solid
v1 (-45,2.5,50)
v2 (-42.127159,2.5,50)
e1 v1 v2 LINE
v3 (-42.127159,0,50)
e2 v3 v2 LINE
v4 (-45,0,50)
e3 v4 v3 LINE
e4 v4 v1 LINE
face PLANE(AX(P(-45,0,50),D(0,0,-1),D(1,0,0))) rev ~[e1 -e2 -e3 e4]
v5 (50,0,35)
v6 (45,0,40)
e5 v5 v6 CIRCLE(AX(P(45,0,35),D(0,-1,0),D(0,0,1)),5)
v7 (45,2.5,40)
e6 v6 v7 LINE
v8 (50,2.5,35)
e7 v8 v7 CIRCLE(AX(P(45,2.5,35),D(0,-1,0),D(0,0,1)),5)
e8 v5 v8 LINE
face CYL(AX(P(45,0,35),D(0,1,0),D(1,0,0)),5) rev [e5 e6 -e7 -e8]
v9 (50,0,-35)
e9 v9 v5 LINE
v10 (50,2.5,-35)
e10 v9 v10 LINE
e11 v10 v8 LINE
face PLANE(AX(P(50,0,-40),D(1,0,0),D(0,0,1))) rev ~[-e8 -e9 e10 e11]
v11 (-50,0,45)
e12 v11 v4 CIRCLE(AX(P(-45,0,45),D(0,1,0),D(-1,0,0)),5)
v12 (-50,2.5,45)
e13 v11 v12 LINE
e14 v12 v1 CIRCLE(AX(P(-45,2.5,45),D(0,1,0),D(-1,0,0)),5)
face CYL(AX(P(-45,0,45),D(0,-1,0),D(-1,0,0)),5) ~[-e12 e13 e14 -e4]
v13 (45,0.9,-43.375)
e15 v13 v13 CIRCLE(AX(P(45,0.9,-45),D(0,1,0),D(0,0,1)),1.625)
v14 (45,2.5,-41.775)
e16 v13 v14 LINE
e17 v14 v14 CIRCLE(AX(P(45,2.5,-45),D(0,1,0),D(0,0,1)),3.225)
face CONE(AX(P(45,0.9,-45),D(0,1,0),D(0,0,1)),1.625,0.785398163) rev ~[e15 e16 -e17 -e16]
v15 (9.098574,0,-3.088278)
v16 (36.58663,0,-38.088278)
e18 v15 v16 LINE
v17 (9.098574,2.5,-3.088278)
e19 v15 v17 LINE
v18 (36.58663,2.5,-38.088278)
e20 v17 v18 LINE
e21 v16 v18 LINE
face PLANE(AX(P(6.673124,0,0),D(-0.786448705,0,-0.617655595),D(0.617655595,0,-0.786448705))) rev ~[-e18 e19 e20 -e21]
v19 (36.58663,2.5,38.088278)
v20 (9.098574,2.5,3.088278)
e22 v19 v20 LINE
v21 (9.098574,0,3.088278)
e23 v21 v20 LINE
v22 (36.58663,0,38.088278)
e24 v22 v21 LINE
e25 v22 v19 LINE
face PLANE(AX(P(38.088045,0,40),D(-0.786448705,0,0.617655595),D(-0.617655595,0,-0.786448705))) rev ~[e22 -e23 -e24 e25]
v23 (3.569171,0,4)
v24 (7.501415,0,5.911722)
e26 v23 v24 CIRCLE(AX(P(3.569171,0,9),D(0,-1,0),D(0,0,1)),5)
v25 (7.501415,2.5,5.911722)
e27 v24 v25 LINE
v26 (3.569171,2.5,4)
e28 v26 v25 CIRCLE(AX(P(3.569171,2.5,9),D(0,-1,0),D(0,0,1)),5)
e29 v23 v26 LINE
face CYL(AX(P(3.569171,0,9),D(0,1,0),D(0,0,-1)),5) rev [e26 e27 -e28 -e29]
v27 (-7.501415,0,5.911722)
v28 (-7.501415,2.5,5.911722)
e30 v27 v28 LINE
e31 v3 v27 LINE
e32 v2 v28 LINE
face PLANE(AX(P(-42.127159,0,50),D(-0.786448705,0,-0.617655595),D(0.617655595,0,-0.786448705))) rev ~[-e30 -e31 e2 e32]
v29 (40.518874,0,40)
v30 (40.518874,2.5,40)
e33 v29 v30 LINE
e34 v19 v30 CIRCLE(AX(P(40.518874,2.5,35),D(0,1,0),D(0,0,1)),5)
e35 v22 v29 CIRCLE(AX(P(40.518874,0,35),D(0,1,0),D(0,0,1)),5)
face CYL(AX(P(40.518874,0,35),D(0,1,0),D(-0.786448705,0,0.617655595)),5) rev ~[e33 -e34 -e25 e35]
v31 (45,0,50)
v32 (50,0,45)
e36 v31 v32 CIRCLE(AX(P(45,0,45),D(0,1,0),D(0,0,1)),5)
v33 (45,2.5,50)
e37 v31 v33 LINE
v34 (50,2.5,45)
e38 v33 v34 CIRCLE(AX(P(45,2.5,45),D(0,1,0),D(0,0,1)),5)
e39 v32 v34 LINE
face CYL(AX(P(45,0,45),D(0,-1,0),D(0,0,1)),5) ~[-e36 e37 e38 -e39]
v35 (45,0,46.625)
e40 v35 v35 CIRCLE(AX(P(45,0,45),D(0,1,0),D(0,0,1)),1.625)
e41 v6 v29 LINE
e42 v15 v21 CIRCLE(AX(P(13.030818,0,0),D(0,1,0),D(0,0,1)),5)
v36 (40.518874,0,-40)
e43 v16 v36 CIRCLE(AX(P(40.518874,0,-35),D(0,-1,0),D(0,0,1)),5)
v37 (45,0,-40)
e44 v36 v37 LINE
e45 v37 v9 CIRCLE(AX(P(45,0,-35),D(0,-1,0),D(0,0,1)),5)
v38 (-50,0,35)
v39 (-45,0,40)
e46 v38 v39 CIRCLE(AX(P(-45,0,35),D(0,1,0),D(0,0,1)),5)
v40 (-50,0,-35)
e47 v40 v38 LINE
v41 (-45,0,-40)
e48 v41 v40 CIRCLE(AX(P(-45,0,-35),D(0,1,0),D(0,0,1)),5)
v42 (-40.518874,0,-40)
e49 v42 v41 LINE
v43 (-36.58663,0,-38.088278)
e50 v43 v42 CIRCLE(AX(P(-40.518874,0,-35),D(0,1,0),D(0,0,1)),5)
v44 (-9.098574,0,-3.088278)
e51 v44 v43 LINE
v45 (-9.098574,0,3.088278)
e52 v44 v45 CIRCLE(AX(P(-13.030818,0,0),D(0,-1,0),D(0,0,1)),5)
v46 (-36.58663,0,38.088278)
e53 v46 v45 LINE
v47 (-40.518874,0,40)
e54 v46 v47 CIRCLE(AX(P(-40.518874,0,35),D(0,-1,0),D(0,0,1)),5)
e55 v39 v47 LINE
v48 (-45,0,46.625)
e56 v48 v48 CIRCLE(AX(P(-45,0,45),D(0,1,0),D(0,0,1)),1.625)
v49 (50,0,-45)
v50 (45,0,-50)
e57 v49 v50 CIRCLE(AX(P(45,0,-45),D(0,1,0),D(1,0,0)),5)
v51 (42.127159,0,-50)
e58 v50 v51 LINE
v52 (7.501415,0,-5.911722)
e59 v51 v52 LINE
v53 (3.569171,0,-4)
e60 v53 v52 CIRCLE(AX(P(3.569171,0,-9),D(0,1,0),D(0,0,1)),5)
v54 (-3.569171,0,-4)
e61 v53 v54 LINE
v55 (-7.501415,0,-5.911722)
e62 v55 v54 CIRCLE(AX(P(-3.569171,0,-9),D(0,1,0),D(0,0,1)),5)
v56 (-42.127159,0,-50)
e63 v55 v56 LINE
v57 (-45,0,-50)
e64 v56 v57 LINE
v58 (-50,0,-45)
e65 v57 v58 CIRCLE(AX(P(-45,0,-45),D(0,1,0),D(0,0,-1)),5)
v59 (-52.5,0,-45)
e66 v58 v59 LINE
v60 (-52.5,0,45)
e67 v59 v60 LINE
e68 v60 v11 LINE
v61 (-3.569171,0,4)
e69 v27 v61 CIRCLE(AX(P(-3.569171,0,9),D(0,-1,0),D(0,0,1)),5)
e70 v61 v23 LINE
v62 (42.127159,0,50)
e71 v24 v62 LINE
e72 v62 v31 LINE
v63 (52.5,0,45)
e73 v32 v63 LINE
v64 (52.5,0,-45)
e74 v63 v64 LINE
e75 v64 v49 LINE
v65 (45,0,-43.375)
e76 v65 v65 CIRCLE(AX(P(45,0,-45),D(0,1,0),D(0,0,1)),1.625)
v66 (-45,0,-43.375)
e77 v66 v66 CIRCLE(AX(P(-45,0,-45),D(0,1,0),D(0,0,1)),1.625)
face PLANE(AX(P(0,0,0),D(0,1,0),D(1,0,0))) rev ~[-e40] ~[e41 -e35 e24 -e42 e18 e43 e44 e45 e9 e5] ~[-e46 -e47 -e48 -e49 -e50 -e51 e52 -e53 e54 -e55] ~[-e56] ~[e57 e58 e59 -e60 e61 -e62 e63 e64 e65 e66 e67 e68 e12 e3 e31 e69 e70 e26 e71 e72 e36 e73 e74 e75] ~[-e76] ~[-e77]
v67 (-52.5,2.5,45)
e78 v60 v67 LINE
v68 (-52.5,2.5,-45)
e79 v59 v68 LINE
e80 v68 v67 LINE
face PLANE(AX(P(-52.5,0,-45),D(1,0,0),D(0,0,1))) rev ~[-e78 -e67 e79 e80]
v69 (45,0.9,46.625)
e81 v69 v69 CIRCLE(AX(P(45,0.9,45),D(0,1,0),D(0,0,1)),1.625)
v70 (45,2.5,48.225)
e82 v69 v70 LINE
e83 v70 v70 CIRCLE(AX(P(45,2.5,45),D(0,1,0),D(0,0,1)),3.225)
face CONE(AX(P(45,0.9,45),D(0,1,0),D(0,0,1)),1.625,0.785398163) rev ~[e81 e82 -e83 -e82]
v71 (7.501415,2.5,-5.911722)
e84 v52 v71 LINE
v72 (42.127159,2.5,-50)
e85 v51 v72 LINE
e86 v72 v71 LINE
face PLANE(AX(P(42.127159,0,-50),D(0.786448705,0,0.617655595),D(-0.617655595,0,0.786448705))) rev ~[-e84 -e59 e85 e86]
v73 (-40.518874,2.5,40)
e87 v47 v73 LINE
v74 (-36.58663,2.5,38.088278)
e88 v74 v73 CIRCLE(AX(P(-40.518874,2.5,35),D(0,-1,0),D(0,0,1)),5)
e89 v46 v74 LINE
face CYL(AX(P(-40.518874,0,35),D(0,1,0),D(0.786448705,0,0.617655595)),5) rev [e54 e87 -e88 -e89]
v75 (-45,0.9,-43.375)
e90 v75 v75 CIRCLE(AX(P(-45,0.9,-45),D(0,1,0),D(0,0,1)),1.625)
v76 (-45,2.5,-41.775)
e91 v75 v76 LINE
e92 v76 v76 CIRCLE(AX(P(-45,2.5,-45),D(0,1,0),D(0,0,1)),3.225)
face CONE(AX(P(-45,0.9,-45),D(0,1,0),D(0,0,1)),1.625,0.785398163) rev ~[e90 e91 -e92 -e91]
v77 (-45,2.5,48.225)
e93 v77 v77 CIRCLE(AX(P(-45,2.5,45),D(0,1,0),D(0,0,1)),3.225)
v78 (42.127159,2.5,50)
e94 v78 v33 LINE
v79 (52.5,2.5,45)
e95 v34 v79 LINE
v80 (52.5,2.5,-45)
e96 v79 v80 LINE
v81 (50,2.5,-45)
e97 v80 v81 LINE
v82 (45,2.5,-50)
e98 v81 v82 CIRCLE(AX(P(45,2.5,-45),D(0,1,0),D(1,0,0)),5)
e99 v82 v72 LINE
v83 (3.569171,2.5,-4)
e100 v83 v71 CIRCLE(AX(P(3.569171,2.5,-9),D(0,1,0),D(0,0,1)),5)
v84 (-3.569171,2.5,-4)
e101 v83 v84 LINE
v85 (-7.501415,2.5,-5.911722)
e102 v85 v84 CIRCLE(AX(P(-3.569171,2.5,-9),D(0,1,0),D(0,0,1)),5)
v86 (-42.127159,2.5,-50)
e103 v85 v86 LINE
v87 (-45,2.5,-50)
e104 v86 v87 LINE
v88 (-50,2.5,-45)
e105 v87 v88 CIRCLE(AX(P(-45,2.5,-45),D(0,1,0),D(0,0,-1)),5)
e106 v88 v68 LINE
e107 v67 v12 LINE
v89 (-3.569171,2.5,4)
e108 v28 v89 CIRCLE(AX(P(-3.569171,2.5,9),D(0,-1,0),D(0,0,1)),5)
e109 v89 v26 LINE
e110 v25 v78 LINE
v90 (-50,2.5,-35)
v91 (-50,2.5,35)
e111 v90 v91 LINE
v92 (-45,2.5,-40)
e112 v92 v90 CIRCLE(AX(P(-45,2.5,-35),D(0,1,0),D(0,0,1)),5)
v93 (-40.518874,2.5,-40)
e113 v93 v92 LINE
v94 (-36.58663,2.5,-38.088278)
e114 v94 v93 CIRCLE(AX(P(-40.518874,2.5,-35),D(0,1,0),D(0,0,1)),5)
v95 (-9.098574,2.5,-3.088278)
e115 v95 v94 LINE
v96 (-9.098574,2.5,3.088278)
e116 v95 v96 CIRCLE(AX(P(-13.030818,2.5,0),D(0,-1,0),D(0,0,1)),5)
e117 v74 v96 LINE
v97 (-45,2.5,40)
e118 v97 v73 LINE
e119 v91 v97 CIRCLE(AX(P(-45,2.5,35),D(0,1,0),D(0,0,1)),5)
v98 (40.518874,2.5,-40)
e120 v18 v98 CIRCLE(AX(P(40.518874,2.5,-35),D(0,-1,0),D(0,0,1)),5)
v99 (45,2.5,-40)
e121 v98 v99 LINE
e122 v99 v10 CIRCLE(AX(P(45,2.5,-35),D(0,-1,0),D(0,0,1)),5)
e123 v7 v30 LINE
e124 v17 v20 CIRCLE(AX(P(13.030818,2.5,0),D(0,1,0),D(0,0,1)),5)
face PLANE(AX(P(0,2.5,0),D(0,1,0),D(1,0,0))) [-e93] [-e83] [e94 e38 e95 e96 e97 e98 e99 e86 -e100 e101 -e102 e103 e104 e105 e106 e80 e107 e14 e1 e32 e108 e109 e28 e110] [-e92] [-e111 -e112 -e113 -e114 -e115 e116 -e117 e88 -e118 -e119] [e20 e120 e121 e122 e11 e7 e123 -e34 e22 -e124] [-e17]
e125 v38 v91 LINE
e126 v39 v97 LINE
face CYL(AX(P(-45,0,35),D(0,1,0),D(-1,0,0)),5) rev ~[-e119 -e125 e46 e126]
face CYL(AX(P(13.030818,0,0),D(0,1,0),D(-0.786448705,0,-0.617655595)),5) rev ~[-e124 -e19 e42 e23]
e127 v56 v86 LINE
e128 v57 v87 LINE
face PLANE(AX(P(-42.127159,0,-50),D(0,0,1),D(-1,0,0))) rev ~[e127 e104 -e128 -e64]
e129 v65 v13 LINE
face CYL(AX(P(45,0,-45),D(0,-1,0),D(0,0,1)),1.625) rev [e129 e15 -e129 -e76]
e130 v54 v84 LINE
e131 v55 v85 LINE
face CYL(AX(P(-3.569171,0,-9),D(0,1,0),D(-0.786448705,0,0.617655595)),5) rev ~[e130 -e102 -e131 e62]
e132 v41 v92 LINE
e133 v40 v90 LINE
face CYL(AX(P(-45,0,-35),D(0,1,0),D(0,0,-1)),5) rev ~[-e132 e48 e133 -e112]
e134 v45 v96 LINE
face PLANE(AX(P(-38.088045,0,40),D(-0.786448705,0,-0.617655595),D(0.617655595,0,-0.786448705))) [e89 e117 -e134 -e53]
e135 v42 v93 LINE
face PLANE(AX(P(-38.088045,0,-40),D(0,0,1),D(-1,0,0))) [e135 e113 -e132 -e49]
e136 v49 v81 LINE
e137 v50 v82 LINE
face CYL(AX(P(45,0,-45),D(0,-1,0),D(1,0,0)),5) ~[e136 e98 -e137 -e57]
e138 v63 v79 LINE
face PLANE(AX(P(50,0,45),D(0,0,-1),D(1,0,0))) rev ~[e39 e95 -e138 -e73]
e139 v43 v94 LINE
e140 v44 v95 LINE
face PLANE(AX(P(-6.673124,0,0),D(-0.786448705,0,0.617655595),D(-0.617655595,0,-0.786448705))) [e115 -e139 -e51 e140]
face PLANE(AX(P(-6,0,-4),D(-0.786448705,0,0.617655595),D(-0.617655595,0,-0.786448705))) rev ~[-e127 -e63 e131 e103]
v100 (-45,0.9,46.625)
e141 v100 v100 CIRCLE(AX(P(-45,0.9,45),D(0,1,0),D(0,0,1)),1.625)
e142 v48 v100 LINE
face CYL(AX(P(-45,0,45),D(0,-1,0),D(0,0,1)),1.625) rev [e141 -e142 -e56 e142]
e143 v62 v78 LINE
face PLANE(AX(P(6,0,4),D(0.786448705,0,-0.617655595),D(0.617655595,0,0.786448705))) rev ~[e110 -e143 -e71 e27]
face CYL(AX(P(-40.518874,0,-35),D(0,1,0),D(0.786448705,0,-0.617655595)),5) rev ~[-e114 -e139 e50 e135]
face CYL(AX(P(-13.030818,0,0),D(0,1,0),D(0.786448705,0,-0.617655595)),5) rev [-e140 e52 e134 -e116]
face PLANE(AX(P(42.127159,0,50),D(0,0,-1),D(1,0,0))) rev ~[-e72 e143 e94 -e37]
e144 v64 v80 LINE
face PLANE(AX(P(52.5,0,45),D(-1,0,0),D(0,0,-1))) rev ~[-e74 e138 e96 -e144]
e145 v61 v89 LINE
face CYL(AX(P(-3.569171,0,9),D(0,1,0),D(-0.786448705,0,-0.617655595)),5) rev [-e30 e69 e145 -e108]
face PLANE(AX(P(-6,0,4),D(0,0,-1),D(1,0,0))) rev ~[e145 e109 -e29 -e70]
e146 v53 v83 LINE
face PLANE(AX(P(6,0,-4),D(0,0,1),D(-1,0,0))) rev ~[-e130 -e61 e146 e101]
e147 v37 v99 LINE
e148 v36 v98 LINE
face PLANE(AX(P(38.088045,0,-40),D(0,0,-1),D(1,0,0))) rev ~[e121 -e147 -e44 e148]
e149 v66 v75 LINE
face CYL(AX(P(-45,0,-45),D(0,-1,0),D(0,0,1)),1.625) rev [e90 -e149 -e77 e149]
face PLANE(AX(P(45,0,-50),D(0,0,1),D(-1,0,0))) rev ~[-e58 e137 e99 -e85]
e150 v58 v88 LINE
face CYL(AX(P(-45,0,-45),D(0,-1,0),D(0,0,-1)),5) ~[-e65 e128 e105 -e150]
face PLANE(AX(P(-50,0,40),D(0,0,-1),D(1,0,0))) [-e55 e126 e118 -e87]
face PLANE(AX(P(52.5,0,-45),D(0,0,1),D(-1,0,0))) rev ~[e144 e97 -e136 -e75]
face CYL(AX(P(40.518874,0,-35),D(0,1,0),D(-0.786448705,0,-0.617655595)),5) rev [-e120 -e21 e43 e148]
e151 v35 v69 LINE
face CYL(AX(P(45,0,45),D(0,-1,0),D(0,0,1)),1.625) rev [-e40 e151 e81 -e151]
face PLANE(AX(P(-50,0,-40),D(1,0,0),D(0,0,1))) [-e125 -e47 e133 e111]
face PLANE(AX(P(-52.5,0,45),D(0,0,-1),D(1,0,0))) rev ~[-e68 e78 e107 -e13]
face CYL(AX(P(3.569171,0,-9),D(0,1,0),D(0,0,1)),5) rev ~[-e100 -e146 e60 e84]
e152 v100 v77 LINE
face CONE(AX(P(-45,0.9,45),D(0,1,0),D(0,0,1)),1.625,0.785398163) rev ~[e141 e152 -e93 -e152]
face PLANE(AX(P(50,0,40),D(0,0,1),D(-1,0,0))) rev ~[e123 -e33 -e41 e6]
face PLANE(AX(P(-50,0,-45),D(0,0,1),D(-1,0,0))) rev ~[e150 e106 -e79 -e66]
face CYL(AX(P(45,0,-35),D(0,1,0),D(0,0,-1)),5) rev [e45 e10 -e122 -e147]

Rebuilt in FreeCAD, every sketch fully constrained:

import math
import FreeCAD as App
import Part
import Sketcher


def edges_at(feature, points):
    """Names of the edges that pass closest to the given points."""
    edges = feature.Shape.Edges
    near = lambda p: min(range(len(edges)), key=lambda i: edges[i].distToShape(Part.Vertex(*p))[0])
    return sorted({f"Edge{near(p) + 1}" for p in points})


def add_polygon(sketch, points):
    """Adds a closed chain of lines whose ends are joined by coincident constraints."""
    first, n = sketch.GeometryCount, len(points)
    for a, b in zip(points, points[1:] + points[:1]):
        sketch.addGeometry(Part.LineSegment(App.Vector(*a, 0), App.Vector(*b, 0)), False)
    for i in range(n):
        sketch.addConstraint(Sketcher.Constraint("Coincident", first + i, 2, first + (i + 1) % n, 1))

doc = App.newDocument("Part")
body = doc.addObject("PartDesign::Body", "Body")

sketch1 = body.newObject("Sketcher::SketchObject", "Sketch")
sketch1.AttachmentSupport = (doc.getObject("XZ_Plane"), [""])
sketch1.MapMode = "FlatFace"
sketch1.addGeometry(Part.LineSegment(App.Vector(-52.5, -45, 0), App.Vector(-52.5, 45, 0)), False)
sketch1.addGeometry(Part.LineSegment(App.Vector(-52.5, 45, 0), App.Vector(-50, 45, 0)), False)
sketch1.addGeometry(Part.ArcOfCircle(Part.Circle(App.Vector(-45, 45, 0), App.Vector(0, 0, 1), 5), math.radians(90), math.radians(180)), False)
sketch1.addGeometry(Part.LineSegment(App.Vector(-45, 50, 0), App.Vector(-42.1, 50, 0)), False)
sketch1.addGeometry(Part.LineSegment(App.Vector(-42.1, 50, 0), App.Vector(-6, 4, 0)), False)
sketch1.addGeometry(Part.LineSegment(App.Vector(-6, 4, 0), App.Vector(6, 4, 0)), False)
sketch1.addGeometry(Part.LineSegment(App.Vector(6, 4, 0), App.Vector(42.1, 50, 0)), False)
sketch1.addGeometry(Part.LineSegment(App.Vector(42.1, 50, 0), App.Vector(45, 50, 0)), False)
sketch1.addGeometry(Part.ArcOfCircle(Part.Circle(App.Vector(45, 45, 0), App.Vector(0, 0, 1), 5), math.radians(0), math.radians(90)), False)
sketch1.addGeometry(Part.LineSegment(App.Vector(50, 45, 0), App.Vector(52.5, 45, 0)), False)
sketch1.addGeometry(Part.LineSegment(App.Vector(52.5, 45, 0), App.Vector(52.5, -45, 0)), False)
sketch1.addGeometry(Part.LineSegment(App.Vector(52.5, -45, 0), App.Vector(50, -45, 0)), False)
sketch1.addGeometry(Part.ArcOfCircle(Part.Circle(App.Vector(45, -45, 0), App.Vector(0, 0, 1), 5), math.radians(-90), math.radians(0)), False)
sketch1.addGeometry(Part.LineSegment(App.Vector(45, -50, 0), App.Vector(42.1, -50, 0)), False)
sketch1.addGeometry(Part.LineSegment(App.Vector(42.1, -50, 0), App.Vector(6, -4, 0)), False)
sketch1.addGeometry(Part.LineSegment(App.Vector(6, -4, 0), App.Vector(-6, -4, 0)), False)
sketch1.addGeometry(Part.LineSegment(App.Vector(-6, -4, 0), App.Vector(-42.1, -50, 0)), False)
sketch1.addGeometry(Part.LineSegment(App.Vector(-42.1, -50, 0), App.Vector(-45, -50, 0)), False)
sketch1.addGeometry(Part.ArcOfCircle(Part.Circle(App.Vector(-45, -45, 0), App.Vector(0, 0, 1), 5), math.radians(180), math.radians(270)), False)
sketch1.addGeometry(Part.LineSegment(App.Vector(-50, -45, 0), App.Vector(-52.5, -45, 0)), False)
sketch1.addGeometry(Part.Circle(App.Vector(-45, 45, 0), App.Vector(0, 0, 1), 1.6), False)
sketch1.addGeometry(Part.Circle(App.Vector(45, 45, 0), App.Vector(0, 0, 1), 1.6), False)
add_polygon(sketch1, [(-50, 40), (-50, -40), (-38.1, -40), (-6.7, 0), (-38.1, 40)])
sketch1.addGeometry(Part.Circle(App.Vector(-45, -45, 0), App.Vector(0, 0, 1), 1.6), False)
add_polygon(sketch1, [(50, -40), (50, 40), (38.1, 40), (6.7, 0), (38.1, -40)])
sketch1.addGeometry(Part.Circle(App.Vector(45, -45, 0), App.Vector(0, 0, 1), 1.6), False)
sketch1.addConstraint(Sketcher.Constraint("Coincident", 0, 2, 1, 1))
sketch1.addConstraint(Sketcher.Constraint("Coincident", 1, 2, 2, 2))
sketch1.addConstraint(Sketcher.Constraint("Tangent", 2, 1, 3, 1))
sketch1.addConstraint(Sketcher.Constraint("Coincident", 3, 2, 4, 1))
sketch1.addConstraint(Sketcher.Constraint("Coincident", 4, 2, 5, 1))
sketch1.addConstraint(Sketcher.Constraint("Coincident", 5, 2, 6, 1))
sketch1.addConstraint(Sketcher.Constraint("Coincident", 6, 2, 7, 1))
sketch1.addConstraint(Sketcher.Constraint("Tangent", 7, 2, 8, 2))
sketch1.addConstraint(Sketcher.Constraint("Coincident", 8, 1, 9, 1))
sketch1.addConstraint(Sketcher.Constraint("Coincident", 9, 2, 10, 1))
sketch1.addConstraint(Sketcher.Constraint("Coincident", 10, 2, 11, 1))
sketch1.addConstraint(Sketcher.Constraint("Coincident", 11, 2, 12, 2))
sketch1.addConstraint(Sketcher.Constraint("Tangent", 12, 1, 13, 1))
sketch1.addConstraint(Sketcher.Constraint("Coincident", 13, 2, 14, 1))
sketch1.addConstraint(Sketcher.Constraint("Coincident", 14, 2, 15, 1))
sketch1.addConstraint(Sketcher.Constraint("Coincident", 15, 2, 16, 1))
sketch1.addConstraint(Sketcher.Constraint("Coincident", 16, 2, 17, 1))
sketch1.addConstraint(Sketcher.Constraint("Tangent", 17, 2, 18, 2))
sketch1.addConstraint(Sketcher.Constraint("Coincident", 18, 1, 19, 1))
sketch1.addConstraint(Sketcher.Constraint("Coincident", 19, 2, 0, 1))
sketch1.addConstraint(Sketcher.Constraint("Vertical", 0))
sketch1.addConstraint(Sketcher.Constraint("Horizontal", 1))
sketch1.addConstraint(Sketcher.Constraint("Horizontal", 3))
sketch1.addConstraint(Sketcher.Constraint("Horizontal", 5))
sketch1.addConstraint(Sketcher.Constraint("Horizontal", 7))
sketch1.addConstraint(Sketcher.Constraint("Horizontal", 9))
sketch1.addConstraint(Sketcher.Constraint("Vertical", 10))
sketch1.addConstraint(Sketcher.Constraint("Horizontal", 11))
sketch1.addConstraint(Sketcher.Constraint("Horizontal", 13))
sketch1.addConstraint(Sketcher.Constraint("Horizontal", 15))
sketch1.addConstraint(Sketcher.Constraint("Horizontal", 17))
sketch1.addConstraint(Sketcher.Constraint("Horizontal", 19))
sketch1.addConstraint(Sketcher.Constraint("Vertical", 22))
sketch1.addConstraint(Sketcher.Constraint("Horizontal", 23))
sketch1.addConstraint(Sketcher.Constraint("Horizontal", 26))
sketch1.addConstraint(Sketcher.Constraint("Vertical", 28))
sketch1.addConstraint(Sketcher.Constraint("Horizontal", 29))
sketch1.addConstraint(Sketcher.Constraint("Horizontal", 32))
sketch1.addConstraint(Sketcher.Constraint("Coincident", 20, 3, 2, 3))
sketch1.addConstraint(Sketcher.Constraint("Coincident", 21, 3, 8, 3))
sketch1.addConstraint(Sketcher.Constraint("Coincident", 27, 3, 18, 3))
sketch1.addConstraint(Sketcher.Constraint("Coincident", 33, 3, 12, 3))
sketch1.addConstraint(Sketcher.Constraint("Equal", 2, 8))
sketch1.addConstraint(Sketcher.Constraint("Equal", 8, 12))
sketch1.addConstraint(Sketcher.Constraint("Equal", 12, 18))
sketch1.addConstraint(Sketcher.Constraint("Equal", 20, 21))
sketch1.addConstraint(Sketcher.Constraint("Equal", 21, 27))
sketch1.addConstraint(Sketcher.Constraint("Equal", 27, 33))
sketch1.addConstraint(Sketcher.Constraint("Symmetric", 2, 3, 12, 3, -1, 1))
sketch1.addConstraint(Sketcher.Constraint("Symmetric", 8, 3, 18, 3, -1, 1))
sketch1.addConstraint(Sketcher.Constraint("Symmetric", 0, 2, 10, 2, -1, 1))
sketch1.addConstraint(Sketcher.Constraint("Symmetric", 4, 2, 14, 2, -1, 1))
sketch1.addConstraint(Sketcher.Constraint("Symmetric", 22, 2, 28, 2, -1, 1))
sketch1.addConstraint(Sketcher.Constraint("Symmetric", 24, 2, 30, 2, -1, 1))
sketch1.addConstraint(Sketcher.Constraint("Symmetric", 25, 2, 31, 2, -1, 1))
sketch1.addConstraint(Sketcher.Constraint("Symmetric", 2, 3, 8, 3, -2))
sketch1.addConstraint(Sketcher.Constraint("Symmetric", 25, 2, 29, 2, -2))
sketch1.addConstraint(Sketcher.Constraint("PointOnObject", 24, 2, -1))
sketch1.addConstraint(Sketcher.Constraint("Parallel", 4, 14))
sketch1.addConstraint(Sketcher.Constraint("Parallel", 6, 16))
sketch1.addConstraint(Sketcher.Constraint("Parallel", 16, 24))
sketch1.addConstraint(Sketcher.Constraint("Parallel", 14, 25))
sketch1.addConstraint(Sketcher.Constraint("Parallel", 24, 30))
sketch1.addConstraint(Sketcher.Constraint("Horizontal", 21, 3, 0, 2))
sketch1.addConstraint(Sketcher.Constraint("Horizontal", 1, 2, 8, 1))
sketch1.addConstraint(Sketcher.Constraint("Horizontal", 11, 2, 18, 1))
sketch1.addConstraint(Sketcher.Constraint("Vertical", 6, 2, 13, 2))
sketch1.addConstraint(Sketcher.Constraint("Vertical", 4, 2, 15, 2))
sketch1.addConstraint(Sketcher.Constraint("Vertical", 18, 1, 22, 2))
sketch1.addConstraint(Sketcher.Constraint("Radius", 2, 5.0))
sketch1.addConstraint(Sketcher.Constraint("Diameter", 20, 3.25))
sketch1.addConstraint(Sketcher.Constraint("DistanceX", 5, 1, 5, 2, 12.0))
sketch1.addConstraint(Sketcher.Constraint("DistanceY", 0, 1, 0, 2, 90.0))
sketch1.addConstraint(Sketcher.Constraint("DistanceY", 22, 2, 22, 1, 80.0))
sketch1.addConstraint(Sketcher.Constraint("DistanceX", 1, 1, 1, 2, 2.5))
sketch1.addConstraint(Sketcher.Constraint("DistanceX", 2, 3, -1, 1, 45.0))
sketch1.addConstraint(Sketcher.Constraint("DistanceY", -1, 1, 4, 2, 4.0))
sketch1.addConstraint(Sketcher.Constraint("DistanceX", 3, 1, 3, 2, 2.872841))
sketch1.addConstraint(Sketcher.Constraint("DistanceX", 23, 1, 23, 2, 11.911955))
pad1 = body.newObject("PartDesign::Pad", "Pad")
pad1.Profile = sketch1
pad1.Length = 2.5
pad1.Reversed = True
doc.recompute()

fillet = body.newObject("PartDesign::Fillet", "Fillet")
fillet.Base = (pad1, edges_at(pad1, [
    (-6, 1.25, -4),
    (6, 1.25, -4),
    (6, 1.25, 4),
    (-6, 1.25, 4),
    (-6.673, 1.25, 0),
    (6.673, 1.25, 0),
]))
fillet.Radius = 5
doc.recompute()

fillet2 = body.newObject("PartDesign::Fillet", "Fillet001")
fillet2.Base = (fillet, edges_at(fillet, [
    (-38.088, 1.25, -40),
    (-50, 1.25, -40),
    (-50, 1.25, 40),
    (-38.088, 1.25, 40),
    (50, 1.25, 40),
    (50, 1.25, -40),
    (38.088, 1.25, -40),
    (38.088, 1.25, 40),
]))
fillet2.Radius = 5
doc.recompute()

chamfer = body.newObject("PartDesign::Chamfer", "Chamfer")
chamfer.Base = (fillet2, edges_at(fillet2, [
    (-45, 2.5, -46.625),
    (45, 2.5, -46.625),
    (-45, 2.5, 43.375),
    (45, 2.5, 43.375),
]))
chamfer.Size = 1.6

doc.recompute()
